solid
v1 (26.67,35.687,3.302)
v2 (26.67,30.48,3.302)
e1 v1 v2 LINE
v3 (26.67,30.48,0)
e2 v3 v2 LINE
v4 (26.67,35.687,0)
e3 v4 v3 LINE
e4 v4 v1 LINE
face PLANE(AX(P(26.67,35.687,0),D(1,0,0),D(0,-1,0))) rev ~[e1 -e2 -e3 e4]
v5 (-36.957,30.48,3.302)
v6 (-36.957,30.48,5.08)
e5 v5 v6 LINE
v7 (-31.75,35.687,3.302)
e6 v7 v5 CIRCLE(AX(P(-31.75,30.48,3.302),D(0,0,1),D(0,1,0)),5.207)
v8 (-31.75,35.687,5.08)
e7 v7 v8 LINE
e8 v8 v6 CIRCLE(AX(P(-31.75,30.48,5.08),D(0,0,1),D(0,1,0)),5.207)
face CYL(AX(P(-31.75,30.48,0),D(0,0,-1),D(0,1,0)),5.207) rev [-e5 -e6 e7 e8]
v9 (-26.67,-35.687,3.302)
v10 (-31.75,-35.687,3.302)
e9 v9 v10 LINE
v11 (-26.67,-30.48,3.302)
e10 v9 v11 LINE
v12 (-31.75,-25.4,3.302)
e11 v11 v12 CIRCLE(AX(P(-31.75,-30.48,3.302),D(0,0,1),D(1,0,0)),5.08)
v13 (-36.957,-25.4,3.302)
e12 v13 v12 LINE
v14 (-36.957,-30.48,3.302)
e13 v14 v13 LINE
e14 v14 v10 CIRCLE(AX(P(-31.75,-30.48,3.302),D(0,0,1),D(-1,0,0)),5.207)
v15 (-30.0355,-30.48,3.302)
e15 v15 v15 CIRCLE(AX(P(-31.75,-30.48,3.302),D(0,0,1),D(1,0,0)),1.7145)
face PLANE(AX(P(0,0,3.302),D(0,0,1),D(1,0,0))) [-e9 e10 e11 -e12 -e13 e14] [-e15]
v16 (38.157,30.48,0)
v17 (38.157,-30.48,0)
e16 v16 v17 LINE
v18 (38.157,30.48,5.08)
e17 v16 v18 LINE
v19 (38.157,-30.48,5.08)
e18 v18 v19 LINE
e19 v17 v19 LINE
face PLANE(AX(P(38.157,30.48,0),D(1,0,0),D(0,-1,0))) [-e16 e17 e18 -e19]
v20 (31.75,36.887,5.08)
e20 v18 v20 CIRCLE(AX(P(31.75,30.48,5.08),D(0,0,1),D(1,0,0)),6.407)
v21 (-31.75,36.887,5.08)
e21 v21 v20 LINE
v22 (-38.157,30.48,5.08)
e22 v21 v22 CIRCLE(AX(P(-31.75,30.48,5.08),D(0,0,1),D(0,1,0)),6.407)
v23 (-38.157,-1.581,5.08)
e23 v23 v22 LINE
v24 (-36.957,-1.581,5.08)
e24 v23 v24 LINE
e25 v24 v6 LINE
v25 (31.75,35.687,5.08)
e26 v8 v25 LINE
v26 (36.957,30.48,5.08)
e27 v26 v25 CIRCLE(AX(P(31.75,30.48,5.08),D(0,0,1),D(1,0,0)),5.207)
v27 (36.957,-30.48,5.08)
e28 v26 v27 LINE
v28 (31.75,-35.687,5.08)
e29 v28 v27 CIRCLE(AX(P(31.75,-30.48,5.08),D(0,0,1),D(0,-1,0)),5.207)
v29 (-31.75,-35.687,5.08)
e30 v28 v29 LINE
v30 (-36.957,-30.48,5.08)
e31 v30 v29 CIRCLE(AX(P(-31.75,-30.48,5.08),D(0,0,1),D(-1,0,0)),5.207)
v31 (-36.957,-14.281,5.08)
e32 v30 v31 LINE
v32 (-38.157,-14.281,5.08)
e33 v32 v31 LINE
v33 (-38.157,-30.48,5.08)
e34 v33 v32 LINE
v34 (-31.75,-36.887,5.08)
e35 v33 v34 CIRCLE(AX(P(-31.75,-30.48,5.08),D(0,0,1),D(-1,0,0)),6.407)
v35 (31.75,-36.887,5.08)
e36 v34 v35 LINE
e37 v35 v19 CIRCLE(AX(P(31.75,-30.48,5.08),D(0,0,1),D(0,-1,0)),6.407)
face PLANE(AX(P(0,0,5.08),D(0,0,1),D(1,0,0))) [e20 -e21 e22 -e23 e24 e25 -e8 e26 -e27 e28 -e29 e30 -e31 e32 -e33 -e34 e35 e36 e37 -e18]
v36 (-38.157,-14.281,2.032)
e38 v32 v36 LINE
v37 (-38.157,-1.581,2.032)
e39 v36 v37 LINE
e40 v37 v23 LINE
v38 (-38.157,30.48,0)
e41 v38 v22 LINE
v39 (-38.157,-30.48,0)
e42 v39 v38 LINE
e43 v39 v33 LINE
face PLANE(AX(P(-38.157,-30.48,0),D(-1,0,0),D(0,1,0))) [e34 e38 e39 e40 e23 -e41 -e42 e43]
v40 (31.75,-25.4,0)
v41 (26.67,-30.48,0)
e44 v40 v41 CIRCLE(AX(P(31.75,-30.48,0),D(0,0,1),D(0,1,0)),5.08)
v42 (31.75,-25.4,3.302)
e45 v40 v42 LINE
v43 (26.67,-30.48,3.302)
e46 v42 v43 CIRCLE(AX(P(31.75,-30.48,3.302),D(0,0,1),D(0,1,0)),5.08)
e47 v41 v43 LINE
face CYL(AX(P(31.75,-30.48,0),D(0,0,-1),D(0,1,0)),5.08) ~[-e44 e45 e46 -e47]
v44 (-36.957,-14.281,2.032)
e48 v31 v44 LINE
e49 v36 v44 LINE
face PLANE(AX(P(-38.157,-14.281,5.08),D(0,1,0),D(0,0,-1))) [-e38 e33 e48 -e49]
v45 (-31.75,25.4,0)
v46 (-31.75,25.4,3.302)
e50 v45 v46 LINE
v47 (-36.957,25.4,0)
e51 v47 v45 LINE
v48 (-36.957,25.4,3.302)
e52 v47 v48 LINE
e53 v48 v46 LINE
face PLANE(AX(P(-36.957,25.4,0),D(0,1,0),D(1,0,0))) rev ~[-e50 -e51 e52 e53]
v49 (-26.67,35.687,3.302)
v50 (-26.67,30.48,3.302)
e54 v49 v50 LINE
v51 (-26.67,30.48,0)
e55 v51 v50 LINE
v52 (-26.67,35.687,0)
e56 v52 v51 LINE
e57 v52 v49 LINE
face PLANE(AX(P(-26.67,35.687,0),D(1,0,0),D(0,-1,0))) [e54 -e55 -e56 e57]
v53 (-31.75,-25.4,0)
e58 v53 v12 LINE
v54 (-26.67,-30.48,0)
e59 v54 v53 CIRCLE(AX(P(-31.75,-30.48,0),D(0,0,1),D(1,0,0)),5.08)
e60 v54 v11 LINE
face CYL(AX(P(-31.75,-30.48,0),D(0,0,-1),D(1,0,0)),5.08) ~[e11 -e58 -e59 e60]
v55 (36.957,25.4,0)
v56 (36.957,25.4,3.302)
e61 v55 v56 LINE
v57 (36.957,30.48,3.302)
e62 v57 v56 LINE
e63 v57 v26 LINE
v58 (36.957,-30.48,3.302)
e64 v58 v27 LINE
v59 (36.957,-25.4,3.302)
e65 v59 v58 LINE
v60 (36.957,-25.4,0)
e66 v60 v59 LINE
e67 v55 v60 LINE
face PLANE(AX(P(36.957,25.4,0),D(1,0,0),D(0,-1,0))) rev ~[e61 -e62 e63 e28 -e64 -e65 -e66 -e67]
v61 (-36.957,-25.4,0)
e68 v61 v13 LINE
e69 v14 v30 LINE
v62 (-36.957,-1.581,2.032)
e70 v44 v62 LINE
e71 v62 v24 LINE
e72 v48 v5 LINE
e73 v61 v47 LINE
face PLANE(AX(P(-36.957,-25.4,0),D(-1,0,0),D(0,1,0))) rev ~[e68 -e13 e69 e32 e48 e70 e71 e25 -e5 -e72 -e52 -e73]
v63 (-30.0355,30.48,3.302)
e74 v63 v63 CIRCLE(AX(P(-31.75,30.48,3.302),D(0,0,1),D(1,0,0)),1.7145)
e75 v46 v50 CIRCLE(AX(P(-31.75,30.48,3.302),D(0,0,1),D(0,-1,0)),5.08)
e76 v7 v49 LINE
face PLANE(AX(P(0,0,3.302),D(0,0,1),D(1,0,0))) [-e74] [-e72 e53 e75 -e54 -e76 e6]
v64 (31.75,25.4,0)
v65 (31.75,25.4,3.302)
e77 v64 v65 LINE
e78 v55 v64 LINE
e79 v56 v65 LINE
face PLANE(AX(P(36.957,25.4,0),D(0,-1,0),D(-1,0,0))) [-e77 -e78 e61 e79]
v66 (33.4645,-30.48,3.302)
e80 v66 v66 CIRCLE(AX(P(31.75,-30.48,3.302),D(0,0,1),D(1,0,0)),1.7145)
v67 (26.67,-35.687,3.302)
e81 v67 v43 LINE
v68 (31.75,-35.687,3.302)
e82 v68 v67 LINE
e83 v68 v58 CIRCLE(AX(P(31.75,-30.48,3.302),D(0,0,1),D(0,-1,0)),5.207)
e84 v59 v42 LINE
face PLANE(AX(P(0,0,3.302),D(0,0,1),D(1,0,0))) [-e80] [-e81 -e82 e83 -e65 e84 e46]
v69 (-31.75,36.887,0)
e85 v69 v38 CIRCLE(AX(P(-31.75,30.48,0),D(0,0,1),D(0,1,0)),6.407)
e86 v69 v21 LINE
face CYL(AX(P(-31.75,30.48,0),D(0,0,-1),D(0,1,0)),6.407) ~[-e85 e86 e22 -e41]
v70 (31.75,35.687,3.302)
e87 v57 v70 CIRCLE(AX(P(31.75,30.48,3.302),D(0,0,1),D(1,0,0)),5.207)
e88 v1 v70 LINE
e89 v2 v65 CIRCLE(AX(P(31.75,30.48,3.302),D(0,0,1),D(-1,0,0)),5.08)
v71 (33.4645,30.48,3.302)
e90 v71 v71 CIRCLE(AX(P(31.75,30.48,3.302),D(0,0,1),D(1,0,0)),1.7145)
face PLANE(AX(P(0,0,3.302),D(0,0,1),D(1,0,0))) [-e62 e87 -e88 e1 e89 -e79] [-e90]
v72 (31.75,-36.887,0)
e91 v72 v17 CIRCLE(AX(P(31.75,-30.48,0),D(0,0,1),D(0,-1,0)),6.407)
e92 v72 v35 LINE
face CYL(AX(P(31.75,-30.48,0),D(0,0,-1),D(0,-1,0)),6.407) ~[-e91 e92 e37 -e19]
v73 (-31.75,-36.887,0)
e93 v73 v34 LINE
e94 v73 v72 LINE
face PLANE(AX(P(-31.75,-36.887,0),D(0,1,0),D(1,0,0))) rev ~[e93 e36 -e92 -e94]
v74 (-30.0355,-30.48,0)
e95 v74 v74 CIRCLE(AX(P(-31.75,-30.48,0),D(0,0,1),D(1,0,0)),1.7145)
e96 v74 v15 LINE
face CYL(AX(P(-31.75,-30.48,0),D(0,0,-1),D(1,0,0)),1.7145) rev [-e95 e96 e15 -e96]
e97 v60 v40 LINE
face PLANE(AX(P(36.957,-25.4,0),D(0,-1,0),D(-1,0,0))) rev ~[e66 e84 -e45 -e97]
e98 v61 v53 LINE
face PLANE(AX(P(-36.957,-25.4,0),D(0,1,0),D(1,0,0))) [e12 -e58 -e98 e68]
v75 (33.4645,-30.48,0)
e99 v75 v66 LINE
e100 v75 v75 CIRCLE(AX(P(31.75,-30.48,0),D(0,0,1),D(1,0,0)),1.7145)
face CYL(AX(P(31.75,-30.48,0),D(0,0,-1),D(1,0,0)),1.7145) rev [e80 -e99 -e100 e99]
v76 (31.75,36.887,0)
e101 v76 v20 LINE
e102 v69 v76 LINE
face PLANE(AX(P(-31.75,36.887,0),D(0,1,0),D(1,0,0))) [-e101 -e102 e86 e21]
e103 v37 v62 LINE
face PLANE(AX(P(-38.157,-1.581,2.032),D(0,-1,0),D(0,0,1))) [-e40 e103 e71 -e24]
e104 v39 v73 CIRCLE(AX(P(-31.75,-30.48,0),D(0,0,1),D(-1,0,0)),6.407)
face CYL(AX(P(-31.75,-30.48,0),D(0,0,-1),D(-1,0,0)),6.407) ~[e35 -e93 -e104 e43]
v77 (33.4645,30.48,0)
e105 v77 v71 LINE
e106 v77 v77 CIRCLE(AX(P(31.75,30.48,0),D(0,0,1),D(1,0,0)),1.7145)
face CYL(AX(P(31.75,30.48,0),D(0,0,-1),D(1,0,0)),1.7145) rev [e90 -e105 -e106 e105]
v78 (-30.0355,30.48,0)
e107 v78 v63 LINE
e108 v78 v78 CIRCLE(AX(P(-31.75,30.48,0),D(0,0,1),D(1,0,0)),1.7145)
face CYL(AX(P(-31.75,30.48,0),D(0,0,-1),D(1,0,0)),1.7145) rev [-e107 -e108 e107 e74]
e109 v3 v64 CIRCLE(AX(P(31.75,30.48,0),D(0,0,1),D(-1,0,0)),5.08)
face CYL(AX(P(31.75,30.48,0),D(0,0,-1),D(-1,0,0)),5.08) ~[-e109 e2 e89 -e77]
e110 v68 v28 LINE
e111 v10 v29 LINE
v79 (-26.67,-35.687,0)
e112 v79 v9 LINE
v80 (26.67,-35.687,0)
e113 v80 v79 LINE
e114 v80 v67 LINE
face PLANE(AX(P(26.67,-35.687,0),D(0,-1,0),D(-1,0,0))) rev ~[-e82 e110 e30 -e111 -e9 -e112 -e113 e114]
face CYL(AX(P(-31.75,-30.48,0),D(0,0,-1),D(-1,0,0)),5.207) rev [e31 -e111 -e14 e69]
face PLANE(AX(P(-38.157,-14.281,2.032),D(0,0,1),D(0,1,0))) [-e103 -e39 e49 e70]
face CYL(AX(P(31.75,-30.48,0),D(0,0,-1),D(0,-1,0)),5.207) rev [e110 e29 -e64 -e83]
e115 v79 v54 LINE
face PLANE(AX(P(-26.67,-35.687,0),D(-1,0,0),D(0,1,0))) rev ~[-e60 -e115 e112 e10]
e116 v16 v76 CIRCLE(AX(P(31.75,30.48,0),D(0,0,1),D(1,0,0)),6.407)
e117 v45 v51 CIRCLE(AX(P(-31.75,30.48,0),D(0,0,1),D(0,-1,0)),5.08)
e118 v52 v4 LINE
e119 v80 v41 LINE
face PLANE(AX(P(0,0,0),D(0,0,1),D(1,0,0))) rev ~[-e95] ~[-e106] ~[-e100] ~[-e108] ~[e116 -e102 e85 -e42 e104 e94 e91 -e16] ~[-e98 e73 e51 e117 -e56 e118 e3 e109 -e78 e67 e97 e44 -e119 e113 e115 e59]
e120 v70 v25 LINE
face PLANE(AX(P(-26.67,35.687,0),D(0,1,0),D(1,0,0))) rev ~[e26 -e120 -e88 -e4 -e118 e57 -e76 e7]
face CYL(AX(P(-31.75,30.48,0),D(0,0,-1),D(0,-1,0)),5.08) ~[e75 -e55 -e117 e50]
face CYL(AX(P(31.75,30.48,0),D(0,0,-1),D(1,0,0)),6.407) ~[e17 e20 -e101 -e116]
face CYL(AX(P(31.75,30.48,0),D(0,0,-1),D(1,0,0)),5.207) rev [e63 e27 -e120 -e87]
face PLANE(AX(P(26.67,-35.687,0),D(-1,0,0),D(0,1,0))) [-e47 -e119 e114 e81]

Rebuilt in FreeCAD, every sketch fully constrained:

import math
import FreeCAD as App
import Part
import Sketcher
Q = App.Units.Quantity


def add_polygon(sketch, points):
    """Adds a closed chain of lines whose ends are joined by coincident constraints."""
    first, n = sketch.GeometryCount, len(points)
    for a, b in zip(points, points[1:] + points[:1]):
        sketch.addGeometry(Part.LineSegment(App.Vector(*a, 0), App.Vector(*b, 0)), False)
    for i in range(n):
        sketch.addConstraint(Sketcher.Constraint("Coincident", first + i, 2, first + (i + 1) % n, 1))

doc = App.newDocument("Part")
body = doc.addObject("PartDesign::Body", "Body")

# Sketch on XY plane
sketch1 = body.newObject("Sketcher::SketchObject", "Sketch")
sketch1.AttachmentSupport = (doc.getObject("XY_Plane"), [""])
sketch1.MapMode = "FlatFace"
sketch1.addGeometry([
    Part.LineSegment(App.Vector(32, 37, 0), App.Vector(-32, 37, 0)),  # 0
    Part.ArcOfCircle(Part.Circle(App.Vector(-32, 30, 0), App.Vector(0, 0, 1), 6), math.radians(90), math.radians(180)),  # 1
    Part.LineSegment(App.Vector(-38, 30, 0), App.Vector(-38, -30, 0)),  # 2
    Part.ArcOfCircle(Part.Circle(App.Vector(-32, -30, 0), App.Vector(0, 0, 1), 6), math.radians(180), math.radians(270)),  # 3
    Part.LineSegment(App.Vector(-32, -37, 0), App.Vector(32, -37, 0)),  # 4
    Part.ArcOfCircle(Part.Circle(App.Vector(32, -30, 0), App.Vector(0, 0, 1), 6), math.radians(-90), math.radians(0)),  # 5
    Part.LineSegment(App.Vector(38, -30, 0), App.Vector(38, 30, 0)),  # 6
    Part.ArcOfCircle(Part.Circle(App.Vector(32, 30, 0), App.Vector(0, 0, 1), 6), math.radians(0), math.radians(90)),  # 7
    Part.ArcOfCircle(Part.Circle(App.Vector(32, -30, 0), App.Vector(0, 0, 1), 5), math.radians(-90), math.radians(0)),  # 8
    Part.LineSegment(App.Vector(32, -36, 0), App.Vector(-32, -36, 0)),  # 9
    Part.ArcOfCircle(Part.Circle(App.Vector(-32, -30, 0), App.Vector(0, 0, 1), 5), math.radians(180), math.radians(270)),  # 10
    Part.LineSegment(App.Vector(-37, -30, 0), App.Vector(-37, 30, 0)),  # 11
    Part.ArcOfCircle(Part.Circle(App.Vector(-32, 30, 0), App.Vector(0, 0, 1), 5), math.radians(90), math.radians(180)),  # 12
    Part.LineSegment(App.Vector(-32, 36, 0), App.Vector(32, 36, 0)),  # 13
    Part.ArcOfCircle(Part.Circle(App.Vector(32, 30, 0), App.Vector(0, 0, 1), 5), math.radians(0), math.radians(90)),  # 14
    Part.LineSegment(App.Vector(37, 30, 0), App.Vector(37, -30, 0)),  # 15
], False)
sketch1.addConstraint([
    Sketcher.Constraint("Tangent", 0, 2, 1, 1),
    Sketcher.Constraint("Tangent", 1, 2, 2, 1),
    Sketcher.Constraint("Tangent", 2, 2, 3, 1),
    Sketcher.Constraint("Tangent", 3, 2, 4, 1),
    Sketcher.Constraint("Tangent", 4, 2, 5, 1),
    Sketcher.Constraint("Tangent", 5, 2, 6, 1),
    Sketcher.Constraint("Tangent", 6, 2, 7, 1),
    Sketcher.Constraint("Tangent", 7, 2, 0, 1),
    Sketcher.Constraint("Tangent", 8, 1, 9, 1),
    Sketcher.Constraint("Tangent", 9, 2, 10, 2),
    Sketcher.Constraint("Tangent", 10, 1, 11, 1),
    Sketcher.Constraint("Tangent", 11, 2, 12, 2),
    Sketcher.Constraint("Tangent", 12, 1, 13, 1),
    Sketcher.Constraint("Tangent", 13, 2, 14, 2),
    Sketcher.Constraint("Tangent", 14, 1, 15, 1),
    Sketcher.Constraint("Tangent", 15, 2, 8, 2),
    Sketcher.Constraint("Horizontal", 0),
    Sketcher.Constraint("Vertical", 2),
    Sketcher.Constraint("Horizontal", 4),
    Sketcher.Constraint("Vertical", 6),
    Sketcher.Constraint("Horizontal", 9),
    Sketcher.Constraint("Vertical", 11),
    Sketcher.Constraint("Horizontal", 13),
    Sketcher.Constraint("Vertical", 15),
    Sketcher.Constraint("Coincident", 8, 3, 5, 3),
    Sketcher.Constraint("Coincident", 10, 3, 3, 3),
    Sketcher.Constraint("Coincident", 12, 3, 1, 3),
    Sketcher.Constraint("Equal", 1, 3),
    Sketcher.Constraint("Equal", 3, 5),
    Sketcher.Constraint("Equal", 5, 7),
    Sketcher.Constraint("Equal", 12, 14),
    Sketcher.Constraint("Symmetric", 1, 3, 5, 3, -1, 1),
    Sketcher.Constraint("DistanceX", 0, 2, 0, 1, Q("2.5 in")),
    Sketcher.Constraint("DistanceY", 2, 2, 2, 1, Q("2.4 in")),
    Sketcher.Constraint("Radius", 8, Q("0.205 in")),
    Sketcher.Constraint("Radius", 1, 6.407),
])
pad1 = body.newObject("PartDesign::Pad", "Pad")
pad1.Profile = sketch1
pad1.Length = Q("0.2 in")

# Sketch on XY plane
sketch2 = body.newObject("Sketcher::SketchObject", "Sketch001")
sketch2.AttachmentSupport = (doc.getObject("XY_Plane"), [""])
sketch2.MapMode = "FlatFace"
sketch2.addGeometry([
    Part.LineSegment(App.Vector(26.7, -35.7, 0), App.Vector(31.8, -35.7, 0)),  # 0
    Part.ArcOfCircle(Part.Circle(App.Vector(31.8, -30.5, 0), App.Vector(0, 0, 1), 5.2), math.radians(-90), math.radians(0)),  # 1
    Part.LineSegment(App.Vector(37, -30.5, 0), App.Vector(37, -25.4, 0)),  # 2
    Part.LineSegment(App.Vector(37, -25.4, 0), App.Vector(31.8, -25.4, 0)),  # 3
    Part.ArcOfCircle(Part.Circle(App.Vector(31.8, -30.5, 0), App.Vector(0, 0, 1), 5.1), math.radians(90), math.radians(180)),  # 4
    Part.LineSegment(App.Vector(26.7, -30.5, 0), App.Vector(26.7, -35.7, 0)),  # 5
    Part.Circle(App.Vector(31.8, -30.5, 0), App.Vector(0, 0, 1), 1.7),  # 6
    Part.LineSegment(App.Vector(-31.8, -35.7, 0), App.Vector(-26.7, -35.7, 0)),  # 7
    Part.LineSegment(App.Vector(-26.7, -35.7, 0), App.Vector(-26.7, -30.5, 0)),  # 8
    Part.ArcOfCircle(Part.Circle(App.Vector(-31.8, -30.5, 0), App.Vector(0, 0, 1), 5.1), math.radians(0), math.radians(90)),  # 9
    Part.LineSegment(App.Vector(-31.8, -25.4, 0), App.Vector(-37, -25.4, 0)),  # 10
    Part.LineSegment(App.Vector(-37, -25.4, 0), App.Vector(-37, -30.5, 0)),  # 11
    Part.ArcOfCircle(Part.Circle(App.Vector(-31.8, -30.5, 0), App.Vector(0, 0, 1), 5.2), math.radians(180), math.radians(270)),  # 12
    Part.Circle(App.Vector(-31.8, -30.5, 0), App.Vector(0, 0, 1), 1.7),  # 13
    Part.LineSegment(App.Vector(31.8, 25.4, 0), App.Vector(37, 25.4, 0)),  # 14
    Part.LineSegment(App.Vector(37, 25.4, 0), App.Vector(37, 30.5, 0)),  # 15
    Part.ArcOfCircle(Part.Circle(App.Vector(31.8, 30.5, 0), App.Vector(0, 0, 1), 5.2), math.radians(0), math.radians(90)),  # 16
    Part.LineSegment(App.Vector(31.8, 35.7, 0), App.Vector(26.7, 35.7, 0)),  # 17
    Part.LineSegment(App.Vector(26.7, 35.7, 0), App.Vector(26.7, 30.5, 0)),  # 18
    Part.ArcOfCircle(Part.Circle(App.Vector(31.8, 30.5, 0), App.Vector(0, 0, 1), 5.1), math.radians(180), math.radians(270)),  # 19
    Part.Circle(App.Vector(31.8, 30.5, 0), App.Vector(0, 0, 1), 1.7),  # 20
    Part.LineSegment(App.Vector(-37, 30.5, 0), App.Vector(-37, 25.4, 0)),  # 21
    Part.LineSegment(App.Vector(-37, 25.4, 0), App.Vector(-31.8, 25.4, 0)),  # 22
    Part.ArcOfCircle(Part.Circle(App.Vector(-31.8, 30.5, 0), App.Vector(0, 0, 1), 5.1), math.radians(-90), math.radians(0)),  # 23
    Part.LineSegment(App.Vector(-26.7, 30.5, 0), App.Vector(-26.7, 35.7, 0)),  # 24
    Part.LineSegment(App.Vector(-26.7, 35.7, 0), App.Vector(-31.8, 35.7, 0)),  # 25
    Part.ArcOfCircle(Part.Circle(App.Vector(-31.8, 30.5, 0), App.Vector(0, 0, 1), 5.2), math.radians(90), math.radians(180)),  # 26
    Part.Circle(App.Vector(-31.8, 30.5, 0), App.Vector(0, 0, 1), 1.7),  # 27
], False)
sketch2.addConstraint([
    Sketcher.Constraint("Tangent", 0, 2, 1, 1),
    Sketcher.Constraint("Tangent", 1, 2, 2, 1),
    Sketcher.Constraint("Coincident", 2, 2, 3, 1),
    Sketcher.Constraint("Tangent", 3, 2, 4, 1),
    Sketcher.Constraint("Tangent", 4, 2, 5, 1),
    Sketcher.Constraint("Coincident", 5, 2, 0, 1),
    Sketcher.Constraint("Coincident", 7, 2, 8, 1),
    Sketcher.Constraint("Tangent", 8, 2, 9, 1),
    Sketcher.Constraint("Tangent", 9, 2, 10, 1),
    Sketcher.Constraint("Coincident", 10, 2, 11, 1),
    Sketcher.Constraint("Tangent", 11, 2, 12, 1),
    Sketcher.Constraint("Tangent", 12, 2, 7, 1),
    Sketcher.Constraint("Coincident", 14, 2, 15, 1),
    Sketcher.Constraint("Tangent", 15, 2, 16, 1),
    Sketcher.Constraint("Tangent", 16, 2, 17, 1),
    Sketcher.Constraint("Coincident", 17, 2, 18, 1),
    Sketcher.Constraint("Tangent", 18, 2, 19, 1),
    Sketcher.Constraint("Tangent", 19, 2, 14, 1),
    Sketcher.Constraint("Coincident", 21, 2, 22, 1),
    Sketcher.Constraint("Tangent", 22, 2, 23, 1),
    Sketcher.Constraint("Tangent", 23, 2, 24, 1),
    Sketcher.Constraint("Coincident", 24, 2, 25, 1),
    Sketcher.Constraint("Tangent", 25, 2, 26, 1),
    Sketcher.Constraint("Tangent", 26, 2, 21, 1),
    Sketcher.Constraint("Horizontal", 0),
    Sketcher.Constraint("Vertical", 2),
    Sketcher.Constraint("Horizontal", 3),
    Sketcher.Constraint("Vertical", 5),
    Sketcher.Constraint("Horizontal", 7),
    Sketcher.Constraint("Vertical", 8),
    Sketcher.Constraint("Horizontal", 10),
    Sketcher.Constraint("Vertical", 11),
    Sketcher.Constraint("Horizontal", 14),
    Sketcher.Constraint("Vertical", 15),
    Sketcher.Constraint("Horizontal", 17),
    Sketcher.Constraint("Vertical", 18),
    Sketcher.Constraint("Vertical", 21),
    Sketcher.Constraint("Horizontal", 22),
    Sketcher.Constraint("Vertical", 24),
    Sketcher.Constraint("Horizontal", 25),
    Sketcher.Constraint("Coincident", 4, 3, 1, 3),
    Sketcher.Constraint("Coincident", 6, 3, 1, 3),
    Sketcher.Constraint("Coincident", 12, 3, 9, 3),
    Sketcher.Constraint("Coincident", 13, 3, 9, 3),
    Sketcher.Constraint("Coincident", 19, 3, 16, 3),
    Sketcher.Constraint("Coincident", 20, 3, 16, 3),
    Sketcher.Constraint("Coincident", 26, 3, 23, 3),
    Sketcher.Constraint("Coincident", 27, 3, 23, 3),
    Sketcher.Constraint("Equal", 4, 9),
    Sketcher.Constraint("Equal", 1, 12),
    Sketcher.Constraint("Equal", 6, 13),
    Sketcher.Constraint("Equal", 12, 16),
    Sketcher.Constraint("Equal", 9, 19),
    Sketcher.Constraint("Equal", 13, 20),
    Sketcher.Constraint("Equal", 19, 23),
    Sketcher.Constraint("Equal", 16, 26),
    Sketcher.Constraint("Equal", 20, 27),
    Sketcher.Constraint("Symmetric", 9, 3, 16, 3, -1, 1),
    Sketcher.Constraint("Symmetric", 1, 3, 23, 3, -1, 1),
    Sketcher.Constraint("Symmetric", 1, 3, 9, 3, -2),
    Sketcher.Constraint("Radius", 4, Q("0.2 in")),
    Sketcher.Constraint("Diameter", 6, Q("0.135 in")),
    Sketcher.Constraint("DistanceY", 2, 2, -1, 1, Q("1 in")),
    Sketcher.Constraint("Radius", 1, Q("0.205 in")),
    Sketcher.Constraint("DistanceX", 9, 3, 1, 3, Q("2.5 in")),
])
pad2 = body.newObject("PartDesign::Pad", "Pad001")
pad2.Profile = sketch2
pad2.Length = Q("0.13 in")

# Sketch on YZ plane
sketch3 = body.newObject("Sketcher::SketchObject", "Sketch002")
sketch3.AttachmentSupport = (doc.getObject("YZ_Plane"), [""])
sketch3.MapMode = "FlatFace"
sketch3.AttachmentOffset = App.Placement(App.Vector(0, 0, -38.157), App.Rotation())
add_polygon(sketch3, [(-14.3, 2), (-14.3, 5.1), (-1.6, 5.1), (-1.6, 2)])  # lines 0-3
sketch3.addConstraint([
    Sketcher.Constraint("Vertical", 0),
    Sketcher.Constraint("Horizontal", 1),
    Sketcher.Constraint("Vertical", 2),
    Sketcher.Constraint("Horizontal", 3),
    Sketcher.Constraint("DistanceX", 1, 1, 1, 2, Q("0.5 in")),
    Sketcher.Constraint("DistanceY", 0, 1, 0, 2, Q("0.12 in")),
    Sketcher.Constraint("DistanceY", -1, 1, 0, 2, Q("0.2 in")),
    Sketcher.Constraint("DistanceX", 0, 2, -1, 1, 14.281),
])
pocket1 = body.newObject("PartDesign::Pocket", "Pocket")
pocket1.Profile = sketch3
pocket1.Length = Q("0.1 in")
pocket1.Reversed = True

doc.recompute()
